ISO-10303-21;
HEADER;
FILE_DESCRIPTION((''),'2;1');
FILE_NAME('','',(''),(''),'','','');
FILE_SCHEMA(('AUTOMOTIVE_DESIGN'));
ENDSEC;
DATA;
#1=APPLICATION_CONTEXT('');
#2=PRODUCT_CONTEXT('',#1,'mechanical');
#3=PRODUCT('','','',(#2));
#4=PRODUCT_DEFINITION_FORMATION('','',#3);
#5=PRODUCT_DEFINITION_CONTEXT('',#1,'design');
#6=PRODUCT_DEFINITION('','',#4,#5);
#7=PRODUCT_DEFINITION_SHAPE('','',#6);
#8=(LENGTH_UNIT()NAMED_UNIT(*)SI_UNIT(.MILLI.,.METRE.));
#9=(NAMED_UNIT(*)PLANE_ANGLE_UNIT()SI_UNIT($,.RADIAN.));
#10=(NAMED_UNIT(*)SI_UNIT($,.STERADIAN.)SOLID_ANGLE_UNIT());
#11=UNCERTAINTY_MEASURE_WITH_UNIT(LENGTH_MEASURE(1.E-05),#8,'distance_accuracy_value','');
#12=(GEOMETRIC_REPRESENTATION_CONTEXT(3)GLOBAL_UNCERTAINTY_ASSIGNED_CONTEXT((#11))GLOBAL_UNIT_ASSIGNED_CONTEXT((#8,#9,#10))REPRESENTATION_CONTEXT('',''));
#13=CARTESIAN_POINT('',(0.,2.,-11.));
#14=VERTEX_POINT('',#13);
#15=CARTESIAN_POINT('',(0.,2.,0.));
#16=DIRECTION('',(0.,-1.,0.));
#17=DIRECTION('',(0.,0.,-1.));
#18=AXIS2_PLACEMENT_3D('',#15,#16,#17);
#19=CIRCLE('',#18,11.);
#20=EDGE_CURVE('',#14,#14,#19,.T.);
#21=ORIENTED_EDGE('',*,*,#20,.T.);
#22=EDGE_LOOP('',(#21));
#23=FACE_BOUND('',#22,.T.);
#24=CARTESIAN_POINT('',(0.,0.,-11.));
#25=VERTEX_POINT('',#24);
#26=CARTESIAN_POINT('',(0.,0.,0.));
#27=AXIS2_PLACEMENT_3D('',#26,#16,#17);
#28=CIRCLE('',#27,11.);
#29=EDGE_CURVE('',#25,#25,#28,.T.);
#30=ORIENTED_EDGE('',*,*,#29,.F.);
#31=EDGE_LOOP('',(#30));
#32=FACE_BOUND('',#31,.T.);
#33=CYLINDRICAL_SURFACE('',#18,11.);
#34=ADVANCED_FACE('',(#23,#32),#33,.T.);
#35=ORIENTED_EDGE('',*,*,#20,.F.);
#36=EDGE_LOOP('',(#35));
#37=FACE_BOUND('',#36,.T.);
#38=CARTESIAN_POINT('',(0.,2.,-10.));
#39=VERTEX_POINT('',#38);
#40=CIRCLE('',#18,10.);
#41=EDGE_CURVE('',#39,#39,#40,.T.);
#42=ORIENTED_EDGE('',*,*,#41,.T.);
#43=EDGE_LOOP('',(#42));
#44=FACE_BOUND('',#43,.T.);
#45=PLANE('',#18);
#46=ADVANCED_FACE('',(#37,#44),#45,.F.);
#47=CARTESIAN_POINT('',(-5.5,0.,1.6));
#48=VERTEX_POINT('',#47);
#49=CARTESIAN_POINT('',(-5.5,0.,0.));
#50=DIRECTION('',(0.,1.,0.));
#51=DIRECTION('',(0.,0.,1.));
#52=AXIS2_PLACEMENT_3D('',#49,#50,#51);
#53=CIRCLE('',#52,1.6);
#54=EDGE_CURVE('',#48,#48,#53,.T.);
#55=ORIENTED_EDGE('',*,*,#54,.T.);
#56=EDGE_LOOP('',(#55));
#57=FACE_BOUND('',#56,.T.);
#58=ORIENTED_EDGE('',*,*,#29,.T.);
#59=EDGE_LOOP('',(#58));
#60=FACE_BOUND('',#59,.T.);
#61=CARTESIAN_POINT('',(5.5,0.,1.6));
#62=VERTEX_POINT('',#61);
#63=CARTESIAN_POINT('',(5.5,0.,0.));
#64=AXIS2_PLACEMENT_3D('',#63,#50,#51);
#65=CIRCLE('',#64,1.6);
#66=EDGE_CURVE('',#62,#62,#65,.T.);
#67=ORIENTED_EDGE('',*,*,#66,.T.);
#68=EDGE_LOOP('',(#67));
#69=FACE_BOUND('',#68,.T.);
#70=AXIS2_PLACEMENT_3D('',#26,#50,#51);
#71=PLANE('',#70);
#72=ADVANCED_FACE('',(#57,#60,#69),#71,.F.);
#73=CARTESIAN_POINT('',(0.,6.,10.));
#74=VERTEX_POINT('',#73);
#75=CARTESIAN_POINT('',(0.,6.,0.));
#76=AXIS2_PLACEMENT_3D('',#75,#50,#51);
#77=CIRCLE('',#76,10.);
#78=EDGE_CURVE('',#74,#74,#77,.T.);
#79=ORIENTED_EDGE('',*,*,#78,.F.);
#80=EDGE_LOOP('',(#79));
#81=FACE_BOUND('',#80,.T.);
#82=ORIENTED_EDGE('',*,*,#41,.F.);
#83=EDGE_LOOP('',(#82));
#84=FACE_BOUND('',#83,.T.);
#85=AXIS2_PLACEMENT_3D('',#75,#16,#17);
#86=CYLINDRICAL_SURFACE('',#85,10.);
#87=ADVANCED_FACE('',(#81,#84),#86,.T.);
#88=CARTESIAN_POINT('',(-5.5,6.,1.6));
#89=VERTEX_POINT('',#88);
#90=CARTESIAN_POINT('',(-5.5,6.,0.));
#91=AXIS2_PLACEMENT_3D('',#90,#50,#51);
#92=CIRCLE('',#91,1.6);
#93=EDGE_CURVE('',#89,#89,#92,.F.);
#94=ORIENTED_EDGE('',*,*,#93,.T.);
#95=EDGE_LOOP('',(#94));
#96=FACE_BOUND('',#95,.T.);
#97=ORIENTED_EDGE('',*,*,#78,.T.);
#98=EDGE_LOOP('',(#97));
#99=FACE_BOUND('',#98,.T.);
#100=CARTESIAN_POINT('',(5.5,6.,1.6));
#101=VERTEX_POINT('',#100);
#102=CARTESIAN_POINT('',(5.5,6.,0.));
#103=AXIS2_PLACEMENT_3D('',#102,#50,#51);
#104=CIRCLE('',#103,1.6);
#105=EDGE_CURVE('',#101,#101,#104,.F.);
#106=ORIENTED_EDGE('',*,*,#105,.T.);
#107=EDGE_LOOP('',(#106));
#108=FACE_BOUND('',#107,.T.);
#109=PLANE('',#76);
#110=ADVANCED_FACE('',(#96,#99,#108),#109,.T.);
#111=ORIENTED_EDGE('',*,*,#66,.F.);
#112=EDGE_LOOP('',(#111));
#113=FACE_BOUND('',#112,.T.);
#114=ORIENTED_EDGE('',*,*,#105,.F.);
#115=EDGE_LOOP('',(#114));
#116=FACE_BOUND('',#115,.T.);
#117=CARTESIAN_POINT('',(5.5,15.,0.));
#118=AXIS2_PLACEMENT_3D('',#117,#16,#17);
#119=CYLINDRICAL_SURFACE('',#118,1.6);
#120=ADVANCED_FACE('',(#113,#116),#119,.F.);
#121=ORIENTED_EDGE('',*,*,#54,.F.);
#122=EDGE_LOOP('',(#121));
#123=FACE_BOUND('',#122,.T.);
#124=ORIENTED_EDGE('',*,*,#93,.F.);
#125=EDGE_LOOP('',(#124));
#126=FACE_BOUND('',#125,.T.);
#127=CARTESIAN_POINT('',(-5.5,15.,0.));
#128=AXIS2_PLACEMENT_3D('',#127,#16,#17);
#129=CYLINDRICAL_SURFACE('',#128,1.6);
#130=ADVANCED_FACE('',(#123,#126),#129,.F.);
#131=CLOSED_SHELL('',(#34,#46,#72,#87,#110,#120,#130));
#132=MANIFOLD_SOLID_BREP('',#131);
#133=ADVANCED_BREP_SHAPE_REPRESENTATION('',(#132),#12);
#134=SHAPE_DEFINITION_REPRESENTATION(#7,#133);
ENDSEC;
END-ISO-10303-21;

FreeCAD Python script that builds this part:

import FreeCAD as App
import Part
import Sketcher
from FreeCAD import Vector

doc = App.newDocument("Part")
params = doc.addObject("Spreadsheet::Sheet", "Params")
for row, (alias, value) in enumerate([
    ("sketch1_diameter", "20 mm"),
    ("pad1_length", "6 mm"),
    ("sketch2_diameter", "22 mm"),
    ("pad2_length", "2 mm"),
    ("sketch3_diameter", "3.2 mm"),
    ("pocket1_length", "15 mm"),
], start=1):
    params.set(f"A{row}", alias)
    params.set(f"B{row}", "=" + value)
    params.setAlias(f"B{row}", alias)

body = doc.addObject("PartDesign::Body", "Body")

# Sketch on XZ plane
sketch1 = body.newObject("Sketcher::SketchObject", "Sketch")
sketch1.AttachmentSupport = (doc.getObject("XZ_Plane"), [""])
sketch1.MapMode = "FlatFace"
sketch1.addGeometry(Part.Circle(Vector(0, 0, 0), Vector(0, 0, 1), 10), False)
sketch1.addConstraint([
    Sketcher.Constraint("Coincident", 0, 3, -1, 1),
    Sketcher.Constraint("Diameter", 0, 20.0),
])
sketch1.setExpression("Constraints[1]", "Params.sketch1_diameter")
pad1 = body.newObject("PartDesign::Pad", "Pad")
pad1.Profile = sketch1
pad1.setExpression("Length", "Params.pad1_length")
pad1.Reversed = True

# Sketch on XZ plane
sketch2 = body.newObject("Sketcher::SketchObject", "Sketch001")
sketch2.AttachmentSupport = (doc.getObject("XZ_Plane"), [""])
sketch2.MapMode = "FlatFace"
sketch2.addGeometry(Part.Circle(Vector(0, 0, 0), Vector(0, 0, 1), 11), False)
sketch2.addConstraint([
    Sketcher.Constraint("Coincident", 0, 3, -1, 1),
    Sketcher.Constraint("Diameter", 0, 22.0),
])
sketch2.setExpression("Constraints[1]", "Params.sketch2_diameter")
pad2 = body.newObject("PartDesign::Pad", "Pad001")
pad2.Profile = sketch2
pad2.setExpression("Length", "Params.pad2_length")
pad2.Reversed = True

# Sketch on XZ plane
sketch3 = body.newObject("Sketcher::SketchObject", "Sketch002")
sketch3.AttachmentSupport = (doc.getObject("XZ_Plane"), [""])
sketch3.MapMode = "FlatFace"
sketch3.addGeometry([
    Part.Circle(Vector(-5.5, 0, 0), Vector(0, 0, 1), 1.6),
    Part.Circle(Vector(5.5, 0, 0), Vector(0, 0, 1), 1.6),
], False)
sketch3.addConstraint([
    Sketcher.Constraint("Equal", 0, 1),
    Sketcher.Constraint("Symmetric", 0, 3, 1, 3, -1, 1),
    Sketcher.Constraint("PointOnObject", 0, 3, -1),
    Sketcher.Constraint("Diameter", 0, 3.2),
    Sketcher.Constraint("DistanceX", 0, 3, 1, 3, 11.0),
])
sketch3.setExpression("Constraints[3]", "Params.sketch3_diameter")
pocket1 = body.newObject("PartDesign::Pocket", "Pocket")
pocket1.Profile = sketch3
pocket1.setExpression("Length", "Params.pocket1_length")

doc.recompute()
